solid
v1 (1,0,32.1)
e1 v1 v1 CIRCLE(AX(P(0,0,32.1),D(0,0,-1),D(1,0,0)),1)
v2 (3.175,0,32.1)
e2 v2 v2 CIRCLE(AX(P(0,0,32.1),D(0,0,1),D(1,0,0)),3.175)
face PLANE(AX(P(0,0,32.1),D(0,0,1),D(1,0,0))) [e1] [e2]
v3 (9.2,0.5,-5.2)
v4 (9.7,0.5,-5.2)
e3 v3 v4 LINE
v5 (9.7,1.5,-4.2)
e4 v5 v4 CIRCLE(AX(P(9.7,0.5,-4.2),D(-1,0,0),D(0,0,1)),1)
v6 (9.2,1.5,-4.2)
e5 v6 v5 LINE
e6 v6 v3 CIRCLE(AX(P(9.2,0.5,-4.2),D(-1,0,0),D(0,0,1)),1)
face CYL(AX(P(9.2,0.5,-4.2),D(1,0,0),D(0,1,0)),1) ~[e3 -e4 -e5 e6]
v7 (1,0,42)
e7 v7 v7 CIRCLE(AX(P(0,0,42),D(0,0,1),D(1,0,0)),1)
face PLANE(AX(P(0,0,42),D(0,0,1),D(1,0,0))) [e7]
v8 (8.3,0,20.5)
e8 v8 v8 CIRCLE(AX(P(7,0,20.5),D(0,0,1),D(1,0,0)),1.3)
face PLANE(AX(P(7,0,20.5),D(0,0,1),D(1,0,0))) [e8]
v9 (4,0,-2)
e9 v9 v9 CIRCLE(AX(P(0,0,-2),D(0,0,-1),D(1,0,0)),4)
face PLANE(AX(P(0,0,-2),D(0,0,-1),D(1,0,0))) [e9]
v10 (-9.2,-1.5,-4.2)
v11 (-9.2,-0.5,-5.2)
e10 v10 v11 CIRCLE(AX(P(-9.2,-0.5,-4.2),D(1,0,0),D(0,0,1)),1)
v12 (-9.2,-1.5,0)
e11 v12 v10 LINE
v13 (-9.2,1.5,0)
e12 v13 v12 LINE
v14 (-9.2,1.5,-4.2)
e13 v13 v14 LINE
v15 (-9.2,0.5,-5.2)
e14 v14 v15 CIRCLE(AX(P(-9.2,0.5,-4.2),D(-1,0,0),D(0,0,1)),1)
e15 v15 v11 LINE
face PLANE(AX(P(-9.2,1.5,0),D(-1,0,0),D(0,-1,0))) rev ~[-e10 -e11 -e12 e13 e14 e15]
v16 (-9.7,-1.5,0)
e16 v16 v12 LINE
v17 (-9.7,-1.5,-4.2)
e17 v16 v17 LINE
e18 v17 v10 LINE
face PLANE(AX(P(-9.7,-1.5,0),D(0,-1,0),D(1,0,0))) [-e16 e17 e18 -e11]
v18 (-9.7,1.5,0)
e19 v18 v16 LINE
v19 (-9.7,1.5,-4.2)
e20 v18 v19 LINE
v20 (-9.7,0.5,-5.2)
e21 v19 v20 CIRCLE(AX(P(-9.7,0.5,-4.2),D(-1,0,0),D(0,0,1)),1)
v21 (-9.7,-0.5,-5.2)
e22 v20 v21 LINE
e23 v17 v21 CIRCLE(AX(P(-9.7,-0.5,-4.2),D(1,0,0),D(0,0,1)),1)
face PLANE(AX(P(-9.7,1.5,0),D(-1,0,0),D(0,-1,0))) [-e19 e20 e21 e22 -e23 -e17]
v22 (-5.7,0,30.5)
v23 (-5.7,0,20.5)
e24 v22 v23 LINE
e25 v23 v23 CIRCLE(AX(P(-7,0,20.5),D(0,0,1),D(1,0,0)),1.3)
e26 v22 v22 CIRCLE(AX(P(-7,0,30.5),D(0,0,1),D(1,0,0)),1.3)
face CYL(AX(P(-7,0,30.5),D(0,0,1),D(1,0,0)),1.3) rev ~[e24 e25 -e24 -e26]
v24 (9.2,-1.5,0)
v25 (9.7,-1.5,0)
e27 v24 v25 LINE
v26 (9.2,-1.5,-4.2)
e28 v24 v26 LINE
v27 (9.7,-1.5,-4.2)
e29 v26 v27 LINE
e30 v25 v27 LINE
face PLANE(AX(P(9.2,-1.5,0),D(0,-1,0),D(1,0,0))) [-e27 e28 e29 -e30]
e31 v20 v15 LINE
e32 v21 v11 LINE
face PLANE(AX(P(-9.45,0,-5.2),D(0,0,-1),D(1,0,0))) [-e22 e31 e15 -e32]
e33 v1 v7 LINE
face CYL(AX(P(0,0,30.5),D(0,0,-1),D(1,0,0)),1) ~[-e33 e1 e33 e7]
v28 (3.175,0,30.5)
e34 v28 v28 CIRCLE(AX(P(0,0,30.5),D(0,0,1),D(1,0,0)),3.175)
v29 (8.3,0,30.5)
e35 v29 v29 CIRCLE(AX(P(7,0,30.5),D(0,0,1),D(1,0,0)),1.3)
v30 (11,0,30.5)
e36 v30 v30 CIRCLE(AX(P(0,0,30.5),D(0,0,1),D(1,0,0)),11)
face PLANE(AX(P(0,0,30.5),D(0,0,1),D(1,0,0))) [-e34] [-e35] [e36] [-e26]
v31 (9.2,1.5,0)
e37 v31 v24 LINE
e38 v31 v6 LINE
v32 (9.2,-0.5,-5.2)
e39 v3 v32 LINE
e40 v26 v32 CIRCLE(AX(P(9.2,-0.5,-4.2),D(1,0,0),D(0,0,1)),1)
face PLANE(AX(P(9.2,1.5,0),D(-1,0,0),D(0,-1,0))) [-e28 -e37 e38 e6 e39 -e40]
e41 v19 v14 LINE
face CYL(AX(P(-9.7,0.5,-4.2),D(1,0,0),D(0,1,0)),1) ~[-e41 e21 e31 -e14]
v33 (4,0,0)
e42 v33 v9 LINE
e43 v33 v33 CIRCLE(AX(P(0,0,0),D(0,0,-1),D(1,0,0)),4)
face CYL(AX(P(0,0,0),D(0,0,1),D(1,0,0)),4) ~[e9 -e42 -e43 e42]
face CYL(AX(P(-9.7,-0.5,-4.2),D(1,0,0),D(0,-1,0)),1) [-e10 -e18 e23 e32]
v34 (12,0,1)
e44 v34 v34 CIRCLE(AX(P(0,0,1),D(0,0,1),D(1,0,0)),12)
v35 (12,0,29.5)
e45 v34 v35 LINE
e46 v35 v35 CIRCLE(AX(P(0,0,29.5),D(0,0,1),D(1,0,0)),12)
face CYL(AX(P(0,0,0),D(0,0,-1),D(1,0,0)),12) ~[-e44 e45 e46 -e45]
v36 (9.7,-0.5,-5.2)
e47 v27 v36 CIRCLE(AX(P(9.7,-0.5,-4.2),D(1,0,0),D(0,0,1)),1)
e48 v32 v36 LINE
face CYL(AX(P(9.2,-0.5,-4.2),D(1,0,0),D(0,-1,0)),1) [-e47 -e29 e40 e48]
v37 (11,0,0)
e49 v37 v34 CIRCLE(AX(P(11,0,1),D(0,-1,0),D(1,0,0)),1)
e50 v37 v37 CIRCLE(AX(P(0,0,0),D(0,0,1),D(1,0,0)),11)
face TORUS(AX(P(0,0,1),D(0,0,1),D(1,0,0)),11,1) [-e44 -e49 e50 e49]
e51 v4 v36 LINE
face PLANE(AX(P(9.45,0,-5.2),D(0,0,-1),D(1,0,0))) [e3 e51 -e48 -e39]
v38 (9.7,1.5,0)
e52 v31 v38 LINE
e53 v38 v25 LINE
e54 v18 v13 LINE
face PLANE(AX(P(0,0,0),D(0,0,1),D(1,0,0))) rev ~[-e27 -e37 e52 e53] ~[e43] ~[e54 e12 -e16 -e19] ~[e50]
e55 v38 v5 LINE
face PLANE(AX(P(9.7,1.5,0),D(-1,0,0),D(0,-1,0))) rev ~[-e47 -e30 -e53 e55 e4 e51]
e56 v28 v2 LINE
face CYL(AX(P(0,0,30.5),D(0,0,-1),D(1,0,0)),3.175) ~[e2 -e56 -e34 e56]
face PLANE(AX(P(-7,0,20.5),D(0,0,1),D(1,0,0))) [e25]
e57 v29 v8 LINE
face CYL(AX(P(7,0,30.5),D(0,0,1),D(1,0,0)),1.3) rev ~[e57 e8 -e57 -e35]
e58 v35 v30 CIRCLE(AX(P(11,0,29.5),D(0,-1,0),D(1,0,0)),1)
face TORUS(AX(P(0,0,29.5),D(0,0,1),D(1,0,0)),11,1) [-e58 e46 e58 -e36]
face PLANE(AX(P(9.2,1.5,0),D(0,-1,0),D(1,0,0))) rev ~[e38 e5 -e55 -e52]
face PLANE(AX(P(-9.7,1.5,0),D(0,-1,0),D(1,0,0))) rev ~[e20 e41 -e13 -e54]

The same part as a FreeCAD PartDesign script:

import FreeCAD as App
import Part
import Sketcher
from FreeCAD import Vector
Q = App.Units.Quantity


def edges_at(feature, points):
    """Names of the edges that pass closest to the given points."""
    edges = feature.Shape.Edges
    near = lambda p: min(range(len(edges)), key=lambda i: edges[i].distToShape(Part.Vertex(*p))[0])
    return sorted({f"Edge{near(p) + 1}" for p in points})

doc = App.newDocument("Part")
params = doc.addObject("Spreadsheet::Sheet", "Params")
for row, (alias, value) in enumerate([
    ("sketch1_diameter", "24 mm"),
    ("pad1_length", "30.5 mm"),
    ("sketch2_diameter", "2 mm"),
    ("pad2_length", "11.5 mm"),
    ("sketch3_diameter", "6.35 mm"),
    ("pad3_length", "1.6 mm"),
    ("sketch4_diameter", "2.6 mm"),
    ("pocket1_length", "10 mm"),
    ("sketch5_diameter", "8 mm"),
    ("pad4_length", "2 mm"),
    ("sketch6_height", "3 mm"),
    ("sketch6_width", "0.5 mm"),
    ("pad5_length", "5.2 mm"),
    ("fillet_radius", "1 mm"),
    ("fillet2_radius", "1 mm"),
    ("fillet3_radius", "1 mm"),
], start=1):
    params.set(f"A{row}", alias)
    params.set(f"B{row}", "=" + value)
    params.setAlias(f"B{row}", alias)

body = doc.addObject("PartDesign::Body", "Body")

sketch1 = doc.addObject("Sketcher::SketchObject", "Sketch")
body.addObject(sketch1)
sketch1.AttachmentSupport = (doc.XY_Plane, [""])
sketch1.MapMode = "FlatFace"
sketch1.addGeometry(Part.Circle(Vector(0, 0, 0), Vector(0, 0, 1), 12), False)
sketch1.addConstraint([
    Sketcher.Constraint("Coincident", 0, 3, -1, 1),
    Sketcher.Constraint("Diameter", 0, Q("24 mm")),
])
sketch1.setExpression("Constraints[1]", "Params.sketch1_diameter")
pad1 = doc.addObject("PartDesign::Pad", "Pad")
body.addObject(pad1)
pad1.Profile = sketch1
pad1.setExpression("Length", "Params.pad1_length")

sketch2 = doc.addObject("Sketcher::SketchObject", "Sketch001")
body.addObject(sketch2)
sketch2.AttachmentSupport = (doc.XY_Plane, [""])
sketch2.MapMode = "FlatFace"
sketch2.AttachmentOffset = App.Placement(Vector(0, 0, 30.5), App.Rotation())
sketch2.addGeometry(Part.Circle(Vector(0, 0, 0), Vector(0, 0, 1), 1), False)
sketch2.addConstraint([
    Sketcher.Constraint("Coincident", 0, 3, -1, 1),
    Sketcher.Constraint("Diameter", 0, Q("2 mm")),
])
sketch2.setExpression("Constraints[1]", "Params.sketch2_diameter")
pad2 = doc.addObject("PartDesign::Pad", "Pad001")
body.addObject(pad2)
pad2.Profile = sketch2
pad2.setExpression("Length", "Params.pad2_length")

sketch3 = doc.addObject("Sketcher::SketchObject", "Sketch002")
body.addObject(sketch3)
sketch3.AttachmentSupport = (doc.XY_Plane, [""])
sketch3.MapMode = "FlatFace"
sketch3.AttachmentOffset = App.Placement(Vector(0, 0, 30.5), App.Rotation())
sketch3.addGeometry(Part.Circle(Vector(0, 0, 0), Vector(0, 0, 1), 3.2), False)
sketch3.addConstraint([
    Sketcher.Constraint("Coincident", 0, 3, -1, 1),
    Sketcher.Constraint("Diameter", 0, Q("6.35 mm")),
])
sketch3.setExpression("Constraints[1]", "Params.sketch3_diameter")
pad3 = doc.addObject("PartDesign::Pad", "Pad002")
body.addObject(pad3)
pad3.Profile = sketch3
pad3.setExpression("Length", "Params.pad3_length")

sketch4 = doc.addObject("Sketcher::SketchObject", "Sketch003")
body.addObject(sketch4)
sketch4.AttachmentSupport = (doc.XY_Plane, [""])
sketch4.MapMode = "FlatFace"
sketch4.AttachmentOffset = App.Placement(Vector(0, 0, 30.5), App.Rotation())
sketch4.addGeometry([
    Part.Circle(Vector(-7, 0, 0), Vector(0, 0, 1), 1.3),
    Part.Circle(Vector(7, 0, 0), Vector(0, 0, 1), 1.3),
], False)
sketch4.addConstraint([
    Sketcher.Constraint("Equal", 0, 1),
    Sketcher.Constraint("Symmetric", 0, 3, 1, 3, -1, 1),
    Sketcher.Constraint("PointOnObject", 0, 3, -1),
    Sketcher.Constraint("Diameter", 0, Q("2.6 mm")),
    Sketcher.Constraint("DistanceX", 0, 3, -1, 1, Q("7 mm")),
])
sketch4.setExpression("Constraints[3]", "Params.sketch4_diameter")
pocket1 = doc.addObject("PartDesign::Pocket", "Pocket")
body.addObject(pocket1)
pocket1.Profile = sketch4
pocket1.setExpression("Length", "Params.pocket1_length")

sketch5 = doc.addObject("Sketcher::SketchObject", "Sketch004")
body.addObject(sketch5)
sketch5.AttachmentSupport = (doc.XY_Plane, [""])
sketch5.MapMode = "FlatFace"
sketch5.addGeometry(Part.Circle(Vector(0, 0, 0), Vector(0, 0, 1), 4), False)
sketch5.addConstraint([
    Sketcher.Constraint("Coincident", 0, 3, -1, 1),
    Sketcher.Constraint("Diameter", 0, Q("8 mm")),
])
sketch5.setExpression("Constraints[1]", "Params.sketch5_diameter")
pad4 = doc.addObject("PartDesign::Pad", "Pad003")
body.addObject(pad4)
pad4.Profile = sketch5
pad4.setExpression("Length", "Params.pad4_length")
pad4.Reversed = True

sketch6 = doc.addObject("Sketcher::SketchObject", "Sketch005")
body.addObject(sketch6)
sketch6.AttachmentSupport = (doc.XY_Plane, [""])
sketch6.MapMode = "FlatFace"
sketch6.addGeometry([
    Part.LineSegment(Vector(-9.7, -1.5, 0), Vector(-9.7, 1.5, 0)),
    Part.LineSegment(Vector(-9.7, 1.5, 0), Vector(-9.2, 1.5, 0)),
    Part.LineSegment(Vector(-9.2, 1.5, 0), Vector(-9.2, -1.5, 0)),
    Part.LineSegment(Vector(-9.2, -1.5, 0), Vector(-9.7, -1.5, 0)),
    Part.LineSegment(Vector(9.2, -1.5, 0), Vector(9.2, 1.5, 0)),
    Part.LineSegment(Vector(9.2, 1.5, 0), Vector(9.7, 1.5, 0)),
    Part.LineSegment(Vector(9.7, 1.5, 0), Vector(9.7, -1.5, 0)),
    Part.LineSegment(Vector(9.7, -1.5, 0), Vector(9.2, -1.5, 0)),
], False)
sketch6.addConstraint([
    Sketcher.Constraint("Coincident", 0, 2, 1, 1),
    Sketcher.Constraint("Coincident", 1, 2, 2, 1),
    Sketcher.Constraint("Coincident", 2, 2, 3, 1),
    Sketcher.Constraint("Coincident", 3, 2, 0, 1),
    Sketcher.Constraint("Coincident", 4, 2, 5, 1),
    Sketcher.Constraint("Coincident", 5, 2, 6, 1),
    Sketcher.Constraint("Coincident", 6, 2, 7, 1),
    Sketcher.Constraint("Coincident", 7, 2, 4, 1),
    Sketcher.Constraint("Vertical", 0),
    Sketcher.Constraint("Horizontal", 1),
    Sketcher.Constraint("Vertical", 2),
    Sketcher.Constraint("Horizontal", 3),
    Sketcher.Constraint("Vertical", 4),
    Sketcher.Constraint("Horizontal", 5),
    Sketcher.Constraint("Vertical", 6),
    Sketcher.Constraint("Horizontal", 7),
    Sketcher.Constraint("Symmetric", 2, 2, 4, 2, -1, 1),
    Sketcher.Constraint("Symmetric", 0, 2, 6, 2, -1, 1),
    Sketcher.Constraint("Horizontal", 1, 2, 4, 2),
    Sketcher.Constraint("DistanceY", 0, 1, 0, 2, Q("3 mm")),
    Sketcher.Constraint("DistanceX", 1, 1, 1, 2, Q("0.5 mm")),
    Sketcher.Constraint("DistanceX", 0, 2, -1, 1, Q("9.7 mm")),
])
sketch6.setExpression("Constraints[19]", "Params.sketch6_height")
sketch6.setExpression("Constraints[20]", "Params.sketch6_width")
pad5 = doc.addObject("PartDesign::Pad", "Pad004")
body.addObject(pad5)
pad5.Profile = sketch6
pad5.setExpression("Length", "Params.pad5_length")
pad5.Reversed = True
doc.recompute()

fillet = doc.addObject("PartDesign::Fillet", "Fillet")
body.addObject(fillet)
fillet.Base = (pad5, edges_at(pad5, [
    (-9.45, 1.5, -5.2),
    (-9.45, -1.5, -5.2),
    (9.45, 1.5, -5.2),
    (9.45, -1.5, -5.2),
]))
fillet.setExpression("Radius", "Params.fillet_radius")
doc.recompute()

fillet2 = doc.addObject("PartDesign::Fillet", "Fillet001")
body.addObject(fillet2)
fillet2.Base = (fillet, edges_at(fillet, [(-12, 0, 0)]))
fillet2.setExpression("Radius", "Params.fillet2_radius")
doc.recompute()

fillet3 = doc.addObject("PartDesign::Fillet", "Fillet002")
body.addObject(fillet3)
fillet3.Base = (fillet2, edges_at(fillet2, [(-12, 0, 30.5)]))
fillet3.setExpression("Radius", "Params.fillet3_radius")

doc.recompute()
